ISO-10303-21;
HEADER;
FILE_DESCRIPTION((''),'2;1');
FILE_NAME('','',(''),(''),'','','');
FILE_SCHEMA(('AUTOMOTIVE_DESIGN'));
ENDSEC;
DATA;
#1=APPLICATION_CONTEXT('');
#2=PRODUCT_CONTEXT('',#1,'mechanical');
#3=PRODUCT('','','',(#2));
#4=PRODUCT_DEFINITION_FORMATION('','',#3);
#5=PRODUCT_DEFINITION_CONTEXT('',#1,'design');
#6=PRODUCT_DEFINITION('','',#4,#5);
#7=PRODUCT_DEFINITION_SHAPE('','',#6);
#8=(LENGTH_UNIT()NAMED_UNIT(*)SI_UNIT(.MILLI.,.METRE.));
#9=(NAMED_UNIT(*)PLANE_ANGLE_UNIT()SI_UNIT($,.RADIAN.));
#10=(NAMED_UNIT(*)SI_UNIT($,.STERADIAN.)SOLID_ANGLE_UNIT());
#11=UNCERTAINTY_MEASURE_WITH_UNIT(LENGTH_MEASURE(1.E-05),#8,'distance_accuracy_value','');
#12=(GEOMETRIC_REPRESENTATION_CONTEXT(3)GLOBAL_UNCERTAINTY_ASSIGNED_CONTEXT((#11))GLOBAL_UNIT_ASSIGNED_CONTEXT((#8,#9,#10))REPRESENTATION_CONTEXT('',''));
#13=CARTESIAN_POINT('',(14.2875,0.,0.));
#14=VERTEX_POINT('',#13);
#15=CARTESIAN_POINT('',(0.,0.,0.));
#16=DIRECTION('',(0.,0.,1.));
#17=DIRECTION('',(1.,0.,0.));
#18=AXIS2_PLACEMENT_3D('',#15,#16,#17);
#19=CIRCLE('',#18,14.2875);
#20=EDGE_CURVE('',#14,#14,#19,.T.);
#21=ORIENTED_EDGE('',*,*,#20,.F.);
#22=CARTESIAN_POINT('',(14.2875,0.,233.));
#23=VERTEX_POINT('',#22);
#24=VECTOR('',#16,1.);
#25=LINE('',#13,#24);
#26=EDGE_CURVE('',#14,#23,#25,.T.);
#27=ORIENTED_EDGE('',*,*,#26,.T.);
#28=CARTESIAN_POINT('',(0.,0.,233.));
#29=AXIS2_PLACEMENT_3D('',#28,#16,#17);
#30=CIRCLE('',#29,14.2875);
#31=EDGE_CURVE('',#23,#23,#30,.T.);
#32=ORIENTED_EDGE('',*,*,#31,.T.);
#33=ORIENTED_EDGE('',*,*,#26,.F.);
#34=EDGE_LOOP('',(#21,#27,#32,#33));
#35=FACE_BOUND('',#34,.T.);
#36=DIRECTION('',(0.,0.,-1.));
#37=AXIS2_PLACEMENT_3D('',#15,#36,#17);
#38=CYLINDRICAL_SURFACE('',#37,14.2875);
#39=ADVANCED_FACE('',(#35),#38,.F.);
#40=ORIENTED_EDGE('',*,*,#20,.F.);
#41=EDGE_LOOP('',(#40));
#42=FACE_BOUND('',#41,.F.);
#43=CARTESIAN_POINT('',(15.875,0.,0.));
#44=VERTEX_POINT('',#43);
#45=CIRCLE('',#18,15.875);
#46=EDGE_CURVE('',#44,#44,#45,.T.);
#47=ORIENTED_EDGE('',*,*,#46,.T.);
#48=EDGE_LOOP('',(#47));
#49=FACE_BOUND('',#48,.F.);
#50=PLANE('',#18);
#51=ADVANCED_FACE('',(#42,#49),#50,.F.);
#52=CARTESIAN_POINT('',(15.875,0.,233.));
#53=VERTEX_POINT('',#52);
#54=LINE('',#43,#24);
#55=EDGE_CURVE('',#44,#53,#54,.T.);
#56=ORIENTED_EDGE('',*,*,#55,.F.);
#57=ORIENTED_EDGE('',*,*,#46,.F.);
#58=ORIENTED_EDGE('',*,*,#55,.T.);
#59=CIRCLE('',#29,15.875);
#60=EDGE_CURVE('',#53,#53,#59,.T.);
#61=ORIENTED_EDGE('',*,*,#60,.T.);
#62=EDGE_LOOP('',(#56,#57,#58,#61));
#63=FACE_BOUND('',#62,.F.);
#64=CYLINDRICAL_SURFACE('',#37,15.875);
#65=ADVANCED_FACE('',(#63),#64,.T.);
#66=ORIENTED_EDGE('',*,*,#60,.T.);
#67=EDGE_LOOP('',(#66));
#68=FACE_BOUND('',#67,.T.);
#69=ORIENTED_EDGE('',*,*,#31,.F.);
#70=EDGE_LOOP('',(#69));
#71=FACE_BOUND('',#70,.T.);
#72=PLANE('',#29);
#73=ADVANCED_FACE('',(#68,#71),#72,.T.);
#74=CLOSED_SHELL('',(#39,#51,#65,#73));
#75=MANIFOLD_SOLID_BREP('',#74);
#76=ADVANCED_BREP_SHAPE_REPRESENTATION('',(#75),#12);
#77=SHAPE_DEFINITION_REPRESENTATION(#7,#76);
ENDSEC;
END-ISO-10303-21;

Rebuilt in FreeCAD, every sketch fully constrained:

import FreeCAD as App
import Part
import Sketcher
Q = App.Units.Quantity

doc = App.newDocument("Part")
body = doc.addObject("PartDesign::Body", "Body")

# Sketch on XY plane
sketch1 = body.newObject("Sketcher::SketchObject", "Sketch")
sketch1.AttachmentSupport = (doc.getObject("XY_Plane"), [""])
sketch1.MapMode = "FlatFace"
sketch1.addGeometry([
    Part.Circle(App.Vector(0, 0, 0), App.Vector(0, 0, 1), 16),
    Part.Circle(App.Vector(0, 0, 0), App.Vector(0, 0, 1), 14),
], False)
sketch1.addConstraint([
    Sketcher.Constraint("Coincident", 0, 3, -1, 1),
    Sketcher.Constraint("Coincident", 1, 3, -1, 1),
    Sketcher.Constraint("Diameter", 0, Q("1.25 in")),
    Sketcher.Constraint("Diameter", 1, Q("1.125 in")),
])
pad1 = body.newObject("PartDesign::Pad", "Pad")
pad1.Profile = sketch1
pad1.Length = 233

doc.recompute()
